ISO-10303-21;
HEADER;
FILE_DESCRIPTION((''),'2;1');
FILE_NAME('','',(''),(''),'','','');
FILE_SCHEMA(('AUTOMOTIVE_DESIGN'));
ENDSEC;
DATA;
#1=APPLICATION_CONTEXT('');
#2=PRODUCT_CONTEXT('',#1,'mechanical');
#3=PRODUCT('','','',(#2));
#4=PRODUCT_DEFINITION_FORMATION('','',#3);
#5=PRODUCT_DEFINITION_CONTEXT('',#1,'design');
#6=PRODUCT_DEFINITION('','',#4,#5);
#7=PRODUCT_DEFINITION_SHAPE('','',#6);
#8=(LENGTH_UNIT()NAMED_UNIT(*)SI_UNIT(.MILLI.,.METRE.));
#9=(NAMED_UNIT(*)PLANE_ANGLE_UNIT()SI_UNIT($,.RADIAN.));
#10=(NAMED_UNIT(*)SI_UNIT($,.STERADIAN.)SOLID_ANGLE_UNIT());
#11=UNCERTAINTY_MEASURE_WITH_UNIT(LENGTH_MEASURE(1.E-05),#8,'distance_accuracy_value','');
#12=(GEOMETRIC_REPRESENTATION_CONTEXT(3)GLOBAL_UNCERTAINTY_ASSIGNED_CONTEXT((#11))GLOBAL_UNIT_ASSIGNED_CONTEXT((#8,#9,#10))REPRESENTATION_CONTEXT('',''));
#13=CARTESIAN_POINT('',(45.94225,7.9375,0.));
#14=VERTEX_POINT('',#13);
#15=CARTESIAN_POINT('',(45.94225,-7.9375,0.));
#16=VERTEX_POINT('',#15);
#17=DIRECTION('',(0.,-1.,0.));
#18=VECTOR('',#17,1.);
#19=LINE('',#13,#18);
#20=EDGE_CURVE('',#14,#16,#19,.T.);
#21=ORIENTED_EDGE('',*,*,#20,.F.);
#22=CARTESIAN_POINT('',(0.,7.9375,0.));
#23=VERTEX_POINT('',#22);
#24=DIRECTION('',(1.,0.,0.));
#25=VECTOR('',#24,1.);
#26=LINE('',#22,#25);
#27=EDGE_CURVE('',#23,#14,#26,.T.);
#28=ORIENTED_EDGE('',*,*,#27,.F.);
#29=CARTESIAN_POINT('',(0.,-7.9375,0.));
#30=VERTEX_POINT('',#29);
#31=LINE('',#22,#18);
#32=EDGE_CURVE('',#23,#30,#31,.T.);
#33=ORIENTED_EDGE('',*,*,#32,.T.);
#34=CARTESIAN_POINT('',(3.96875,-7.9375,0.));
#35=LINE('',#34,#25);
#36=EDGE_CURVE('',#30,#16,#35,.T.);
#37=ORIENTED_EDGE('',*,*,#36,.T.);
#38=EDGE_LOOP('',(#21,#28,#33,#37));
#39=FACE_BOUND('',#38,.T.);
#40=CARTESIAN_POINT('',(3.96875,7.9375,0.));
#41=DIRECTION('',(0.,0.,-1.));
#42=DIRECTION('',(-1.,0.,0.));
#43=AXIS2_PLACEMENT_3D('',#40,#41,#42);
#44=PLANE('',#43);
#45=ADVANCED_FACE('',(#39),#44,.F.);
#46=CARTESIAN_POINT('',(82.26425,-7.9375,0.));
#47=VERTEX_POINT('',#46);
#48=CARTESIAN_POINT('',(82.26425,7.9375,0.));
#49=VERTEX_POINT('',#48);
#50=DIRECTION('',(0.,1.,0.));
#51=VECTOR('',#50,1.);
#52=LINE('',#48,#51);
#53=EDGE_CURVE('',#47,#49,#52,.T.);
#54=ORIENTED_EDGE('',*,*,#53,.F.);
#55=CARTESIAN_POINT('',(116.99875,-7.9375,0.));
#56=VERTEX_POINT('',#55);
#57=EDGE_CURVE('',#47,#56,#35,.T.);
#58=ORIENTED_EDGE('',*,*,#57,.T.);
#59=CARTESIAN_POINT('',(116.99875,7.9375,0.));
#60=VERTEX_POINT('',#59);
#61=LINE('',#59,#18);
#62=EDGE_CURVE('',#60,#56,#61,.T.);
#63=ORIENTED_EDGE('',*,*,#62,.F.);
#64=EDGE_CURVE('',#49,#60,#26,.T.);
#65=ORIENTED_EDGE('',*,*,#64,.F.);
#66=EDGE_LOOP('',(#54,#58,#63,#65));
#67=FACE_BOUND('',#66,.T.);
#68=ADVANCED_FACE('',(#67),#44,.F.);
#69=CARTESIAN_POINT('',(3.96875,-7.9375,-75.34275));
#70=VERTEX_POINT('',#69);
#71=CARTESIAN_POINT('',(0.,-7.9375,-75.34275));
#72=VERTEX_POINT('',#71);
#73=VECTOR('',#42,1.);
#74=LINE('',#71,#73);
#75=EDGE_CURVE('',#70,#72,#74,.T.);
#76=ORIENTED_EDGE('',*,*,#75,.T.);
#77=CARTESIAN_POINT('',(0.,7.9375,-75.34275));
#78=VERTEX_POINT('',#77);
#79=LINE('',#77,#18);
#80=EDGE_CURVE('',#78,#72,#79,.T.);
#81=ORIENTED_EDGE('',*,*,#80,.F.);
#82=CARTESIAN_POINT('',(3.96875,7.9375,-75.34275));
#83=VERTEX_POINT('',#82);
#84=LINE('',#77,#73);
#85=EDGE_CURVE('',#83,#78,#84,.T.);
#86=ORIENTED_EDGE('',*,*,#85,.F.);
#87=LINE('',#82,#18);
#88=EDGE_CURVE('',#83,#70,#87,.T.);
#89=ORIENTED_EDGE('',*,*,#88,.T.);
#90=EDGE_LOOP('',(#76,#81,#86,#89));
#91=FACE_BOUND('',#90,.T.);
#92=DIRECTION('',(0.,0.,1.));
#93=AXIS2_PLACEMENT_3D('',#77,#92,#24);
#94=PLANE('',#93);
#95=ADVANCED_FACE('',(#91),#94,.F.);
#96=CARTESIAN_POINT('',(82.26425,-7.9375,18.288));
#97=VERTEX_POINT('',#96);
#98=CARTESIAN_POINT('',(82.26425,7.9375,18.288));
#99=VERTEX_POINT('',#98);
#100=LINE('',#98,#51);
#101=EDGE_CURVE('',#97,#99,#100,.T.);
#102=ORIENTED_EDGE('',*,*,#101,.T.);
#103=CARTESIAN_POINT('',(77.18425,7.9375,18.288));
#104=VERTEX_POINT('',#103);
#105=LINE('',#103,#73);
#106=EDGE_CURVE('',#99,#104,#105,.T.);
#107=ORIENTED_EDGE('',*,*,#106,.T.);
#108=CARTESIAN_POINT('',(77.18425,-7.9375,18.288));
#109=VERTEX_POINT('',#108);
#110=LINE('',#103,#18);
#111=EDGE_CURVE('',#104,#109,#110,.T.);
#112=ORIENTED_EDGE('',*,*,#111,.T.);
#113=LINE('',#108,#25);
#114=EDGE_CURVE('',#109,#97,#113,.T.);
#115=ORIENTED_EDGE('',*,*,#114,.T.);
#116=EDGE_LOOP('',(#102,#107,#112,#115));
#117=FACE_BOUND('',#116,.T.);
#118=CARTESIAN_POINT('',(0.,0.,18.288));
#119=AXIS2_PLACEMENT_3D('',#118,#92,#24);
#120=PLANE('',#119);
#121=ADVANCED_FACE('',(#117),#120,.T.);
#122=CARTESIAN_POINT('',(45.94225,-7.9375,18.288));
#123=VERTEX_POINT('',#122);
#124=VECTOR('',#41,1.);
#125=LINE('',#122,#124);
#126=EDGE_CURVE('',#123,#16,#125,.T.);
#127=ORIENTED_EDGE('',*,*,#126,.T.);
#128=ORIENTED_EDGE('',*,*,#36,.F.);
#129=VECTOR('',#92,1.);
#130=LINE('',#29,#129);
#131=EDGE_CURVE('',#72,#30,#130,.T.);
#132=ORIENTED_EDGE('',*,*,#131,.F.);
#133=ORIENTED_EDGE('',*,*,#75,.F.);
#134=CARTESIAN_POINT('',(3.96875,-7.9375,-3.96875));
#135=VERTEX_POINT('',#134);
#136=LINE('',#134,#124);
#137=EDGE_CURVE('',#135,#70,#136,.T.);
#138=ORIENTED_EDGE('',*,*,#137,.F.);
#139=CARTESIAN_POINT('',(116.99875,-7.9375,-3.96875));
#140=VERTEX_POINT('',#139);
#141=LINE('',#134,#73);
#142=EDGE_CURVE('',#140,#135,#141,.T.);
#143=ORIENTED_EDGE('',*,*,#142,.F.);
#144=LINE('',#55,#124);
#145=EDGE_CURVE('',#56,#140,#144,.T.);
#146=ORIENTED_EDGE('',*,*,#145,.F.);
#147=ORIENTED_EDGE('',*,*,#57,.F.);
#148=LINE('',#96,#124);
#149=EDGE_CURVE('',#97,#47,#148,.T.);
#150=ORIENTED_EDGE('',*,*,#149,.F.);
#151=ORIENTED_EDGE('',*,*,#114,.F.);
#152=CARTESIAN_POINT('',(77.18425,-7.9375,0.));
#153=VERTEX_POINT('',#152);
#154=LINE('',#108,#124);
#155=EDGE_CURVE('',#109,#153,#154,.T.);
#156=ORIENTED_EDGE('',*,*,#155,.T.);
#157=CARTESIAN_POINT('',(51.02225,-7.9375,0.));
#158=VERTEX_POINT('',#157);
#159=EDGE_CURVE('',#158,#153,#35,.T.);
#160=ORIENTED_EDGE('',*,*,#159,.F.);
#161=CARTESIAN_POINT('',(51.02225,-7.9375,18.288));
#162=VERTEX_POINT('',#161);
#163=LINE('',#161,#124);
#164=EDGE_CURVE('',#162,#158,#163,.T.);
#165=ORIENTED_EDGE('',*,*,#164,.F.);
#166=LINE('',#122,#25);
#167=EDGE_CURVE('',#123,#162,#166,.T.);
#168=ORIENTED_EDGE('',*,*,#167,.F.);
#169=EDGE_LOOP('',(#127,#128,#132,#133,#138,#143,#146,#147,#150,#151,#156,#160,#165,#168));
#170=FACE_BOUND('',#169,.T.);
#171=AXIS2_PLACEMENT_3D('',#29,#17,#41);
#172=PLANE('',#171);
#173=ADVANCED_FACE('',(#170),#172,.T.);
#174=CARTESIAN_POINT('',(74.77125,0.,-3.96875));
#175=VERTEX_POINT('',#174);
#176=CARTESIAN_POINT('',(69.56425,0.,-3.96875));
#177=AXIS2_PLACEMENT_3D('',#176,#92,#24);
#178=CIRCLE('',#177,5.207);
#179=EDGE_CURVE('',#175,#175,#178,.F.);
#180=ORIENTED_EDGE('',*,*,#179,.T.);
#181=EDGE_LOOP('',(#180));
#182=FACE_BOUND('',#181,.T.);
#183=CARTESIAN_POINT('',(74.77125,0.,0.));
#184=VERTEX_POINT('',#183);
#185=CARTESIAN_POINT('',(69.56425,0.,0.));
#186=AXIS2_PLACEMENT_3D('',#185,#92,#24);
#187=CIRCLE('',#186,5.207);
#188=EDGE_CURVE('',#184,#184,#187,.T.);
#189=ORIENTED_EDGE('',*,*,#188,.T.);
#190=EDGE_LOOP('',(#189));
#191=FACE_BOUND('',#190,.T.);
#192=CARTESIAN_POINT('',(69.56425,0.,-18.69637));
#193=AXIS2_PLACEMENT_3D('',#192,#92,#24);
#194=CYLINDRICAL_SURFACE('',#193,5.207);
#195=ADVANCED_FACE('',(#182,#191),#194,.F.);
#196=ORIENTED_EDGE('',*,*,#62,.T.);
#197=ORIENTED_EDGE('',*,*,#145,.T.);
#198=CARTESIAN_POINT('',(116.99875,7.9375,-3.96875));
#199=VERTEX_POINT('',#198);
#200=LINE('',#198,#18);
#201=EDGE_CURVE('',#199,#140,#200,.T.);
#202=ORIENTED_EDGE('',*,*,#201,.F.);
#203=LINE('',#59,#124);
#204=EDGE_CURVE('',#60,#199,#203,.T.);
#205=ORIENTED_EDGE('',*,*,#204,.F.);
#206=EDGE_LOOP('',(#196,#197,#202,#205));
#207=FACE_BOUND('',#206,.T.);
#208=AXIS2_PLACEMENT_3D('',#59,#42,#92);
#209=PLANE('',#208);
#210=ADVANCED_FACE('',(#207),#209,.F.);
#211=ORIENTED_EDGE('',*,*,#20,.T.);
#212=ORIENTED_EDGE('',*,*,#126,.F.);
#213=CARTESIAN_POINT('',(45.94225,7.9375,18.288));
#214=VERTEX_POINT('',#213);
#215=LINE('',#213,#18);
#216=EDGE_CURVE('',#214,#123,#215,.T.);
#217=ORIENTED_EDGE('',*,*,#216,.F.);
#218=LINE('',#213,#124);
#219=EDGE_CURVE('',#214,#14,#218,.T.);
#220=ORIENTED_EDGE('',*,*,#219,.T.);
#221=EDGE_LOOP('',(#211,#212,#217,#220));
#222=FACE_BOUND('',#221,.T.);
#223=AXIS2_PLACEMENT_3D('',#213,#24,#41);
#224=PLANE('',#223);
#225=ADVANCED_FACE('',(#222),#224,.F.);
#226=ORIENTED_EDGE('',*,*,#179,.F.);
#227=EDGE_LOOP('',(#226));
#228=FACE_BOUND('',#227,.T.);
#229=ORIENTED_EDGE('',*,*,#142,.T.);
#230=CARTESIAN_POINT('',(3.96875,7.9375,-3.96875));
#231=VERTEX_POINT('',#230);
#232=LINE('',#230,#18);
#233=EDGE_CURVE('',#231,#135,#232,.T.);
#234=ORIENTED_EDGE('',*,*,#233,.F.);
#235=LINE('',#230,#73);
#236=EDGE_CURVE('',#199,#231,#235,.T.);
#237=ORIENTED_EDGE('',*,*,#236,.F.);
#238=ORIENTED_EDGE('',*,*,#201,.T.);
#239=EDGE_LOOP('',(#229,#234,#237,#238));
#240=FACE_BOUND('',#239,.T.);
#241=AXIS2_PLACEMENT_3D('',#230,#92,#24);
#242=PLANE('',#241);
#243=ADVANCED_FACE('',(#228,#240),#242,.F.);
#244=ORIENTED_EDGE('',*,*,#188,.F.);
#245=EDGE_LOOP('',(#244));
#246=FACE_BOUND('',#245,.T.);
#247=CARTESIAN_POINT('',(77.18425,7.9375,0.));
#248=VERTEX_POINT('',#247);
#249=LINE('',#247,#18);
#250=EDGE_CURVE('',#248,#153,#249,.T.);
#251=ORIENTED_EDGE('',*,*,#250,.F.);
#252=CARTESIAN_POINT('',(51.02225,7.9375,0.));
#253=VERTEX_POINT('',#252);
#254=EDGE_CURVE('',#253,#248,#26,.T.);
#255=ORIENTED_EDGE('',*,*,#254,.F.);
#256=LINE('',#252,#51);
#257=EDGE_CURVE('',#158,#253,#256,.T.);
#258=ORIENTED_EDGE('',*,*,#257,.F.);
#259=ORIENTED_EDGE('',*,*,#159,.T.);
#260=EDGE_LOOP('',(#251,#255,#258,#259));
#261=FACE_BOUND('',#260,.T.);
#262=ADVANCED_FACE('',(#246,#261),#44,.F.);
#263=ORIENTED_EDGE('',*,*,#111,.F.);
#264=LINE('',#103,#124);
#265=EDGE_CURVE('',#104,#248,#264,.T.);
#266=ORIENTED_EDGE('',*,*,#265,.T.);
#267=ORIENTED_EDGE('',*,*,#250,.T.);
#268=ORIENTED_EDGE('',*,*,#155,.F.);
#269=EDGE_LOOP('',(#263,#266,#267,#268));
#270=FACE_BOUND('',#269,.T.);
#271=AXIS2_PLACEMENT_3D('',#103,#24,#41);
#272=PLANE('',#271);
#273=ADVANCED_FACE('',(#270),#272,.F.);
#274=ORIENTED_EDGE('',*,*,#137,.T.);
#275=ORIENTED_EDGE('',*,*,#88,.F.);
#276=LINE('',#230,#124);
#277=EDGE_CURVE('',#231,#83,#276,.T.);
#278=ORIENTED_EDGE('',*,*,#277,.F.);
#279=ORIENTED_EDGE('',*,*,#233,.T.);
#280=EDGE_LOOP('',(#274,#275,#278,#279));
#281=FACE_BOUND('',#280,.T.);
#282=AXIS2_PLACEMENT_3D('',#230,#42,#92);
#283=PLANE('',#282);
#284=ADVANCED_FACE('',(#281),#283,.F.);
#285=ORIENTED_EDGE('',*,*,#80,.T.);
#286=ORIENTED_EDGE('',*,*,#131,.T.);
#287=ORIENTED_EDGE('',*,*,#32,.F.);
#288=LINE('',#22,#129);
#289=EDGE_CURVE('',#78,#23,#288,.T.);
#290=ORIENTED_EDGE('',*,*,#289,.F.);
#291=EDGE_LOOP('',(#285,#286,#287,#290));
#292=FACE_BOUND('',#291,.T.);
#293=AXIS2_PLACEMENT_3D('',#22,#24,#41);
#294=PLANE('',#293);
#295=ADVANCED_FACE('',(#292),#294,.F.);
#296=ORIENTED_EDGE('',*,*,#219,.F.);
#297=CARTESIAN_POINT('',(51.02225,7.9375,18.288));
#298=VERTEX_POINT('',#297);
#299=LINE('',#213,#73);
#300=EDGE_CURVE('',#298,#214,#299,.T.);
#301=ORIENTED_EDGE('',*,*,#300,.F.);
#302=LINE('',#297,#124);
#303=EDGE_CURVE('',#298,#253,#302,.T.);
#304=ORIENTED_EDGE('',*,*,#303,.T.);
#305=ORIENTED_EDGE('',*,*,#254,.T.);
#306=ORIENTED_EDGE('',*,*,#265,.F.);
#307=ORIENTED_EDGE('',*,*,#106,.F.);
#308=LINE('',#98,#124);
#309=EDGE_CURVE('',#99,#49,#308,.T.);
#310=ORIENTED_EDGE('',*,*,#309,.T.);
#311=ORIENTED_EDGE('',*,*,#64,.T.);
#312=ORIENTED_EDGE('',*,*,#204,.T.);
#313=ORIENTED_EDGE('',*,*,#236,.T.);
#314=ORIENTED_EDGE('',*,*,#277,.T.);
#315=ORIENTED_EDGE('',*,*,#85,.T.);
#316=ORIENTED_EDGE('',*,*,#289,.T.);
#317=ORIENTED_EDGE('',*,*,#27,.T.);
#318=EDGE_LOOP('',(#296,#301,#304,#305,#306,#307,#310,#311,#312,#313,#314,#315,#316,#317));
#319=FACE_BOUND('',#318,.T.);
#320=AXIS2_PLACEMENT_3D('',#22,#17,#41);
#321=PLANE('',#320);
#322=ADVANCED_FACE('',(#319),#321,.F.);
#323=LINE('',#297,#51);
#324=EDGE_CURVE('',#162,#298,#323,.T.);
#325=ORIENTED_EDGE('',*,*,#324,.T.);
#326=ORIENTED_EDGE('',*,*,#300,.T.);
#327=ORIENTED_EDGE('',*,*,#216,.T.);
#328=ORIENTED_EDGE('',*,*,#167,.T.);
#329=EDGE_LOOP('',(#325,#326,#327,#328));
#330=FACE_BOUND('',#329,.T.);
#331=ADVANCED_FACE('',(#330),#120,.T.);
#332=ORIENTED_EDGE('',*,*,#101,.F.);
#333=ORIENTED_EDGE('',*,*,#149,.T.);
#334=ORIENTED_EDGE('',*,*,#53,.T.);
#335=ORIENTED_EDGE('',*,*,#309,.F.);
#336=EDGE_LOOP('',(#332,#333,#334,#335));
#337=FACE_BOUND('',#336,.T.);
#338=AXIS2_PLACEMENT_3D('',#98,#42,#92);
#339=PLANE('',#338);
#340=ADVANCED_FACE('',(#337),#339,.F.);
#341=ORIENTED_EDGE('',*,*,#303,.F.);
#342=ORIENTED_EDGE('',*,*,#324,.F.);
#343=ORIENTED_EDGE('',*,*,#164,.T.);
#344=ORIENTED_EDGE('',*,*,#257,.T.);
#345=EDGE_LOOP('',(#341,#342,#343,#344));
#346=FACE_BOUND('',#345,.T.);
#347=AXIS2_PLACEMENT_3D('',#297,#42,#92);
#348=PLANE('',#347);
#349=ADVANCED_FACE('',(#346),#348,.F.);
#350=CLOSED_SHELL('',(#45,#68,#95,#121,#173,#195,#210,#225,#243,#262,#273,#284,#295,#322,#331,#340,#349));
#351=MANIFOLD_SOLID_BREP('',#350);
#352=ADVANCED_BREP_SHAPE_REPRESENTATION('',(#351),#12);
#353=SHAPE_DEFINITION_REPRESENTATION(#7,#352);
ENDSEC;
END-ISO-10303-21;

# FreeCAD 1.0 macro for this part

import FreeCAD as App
import Part
import Sketcher
Q = App.Units.Quantity

doc = App.newDocument("Part")
body = doc.addObject("PartDesign::Body", "Body")

sketch1 = body.newObject("Sketcher::SketchObject", "Sketch")
sketch1.AttachmentSupport = (doc.getObject("XZ_Plane"), [""])
sketch1.MapMode = "FlatFace"
sketch1.addGeometry([
    Part.LineSegment(App.Vector(0, 0, 0), App.Vector(116.99875, 0, 0)),
    Part.LineSegment(App.Vector(116.99875, 0, 0), App.Vector(116.99875, -3.96875, 0)),
    Part.LineSegment(App.Vector(116.99875, -3.96875, 0), App.Vector(3.96875, -3.96875, 0)),
    Part.LineSegment(App.Vector(3.96875, -3.96875, 0), App.Vector(3.96875, -75.34275, 0)),
    Part.LineSegment(App.Vector(3.96875, -75.34275, 0), App.Vector(0, -75.34275, 0)),
    Part.LineSegment(App.Vector(0, -75.34275, 0), App.Vector(0, 0, 0)),
], False)
sketch1.addConstraint([
    Sketcher.Constraint("Coincident", 0, 2, 1, 1),
    Sketcher.Constraint("Coincident", 1, 2, 2, 1),
    Sketcher.Constraint("Coincident", 2, 2, 3, 1),
    Sketcher.Constraint("Coincident", 3, 2, 4, 1),
    Sketcher.Constraint("Coincident", 4, 2, 5, 1),
    Sketcher.Constraint("Coincident", 5, 2, 0, 1),
    Sketcher.Constraint("Horizontal", 0),
    Sketcher.Constraint("Vertical", 1),
    Sketcher.Constraint("Horizontal", 2),
    Sketcher.Constraint("Vertical", 3),
    Sketcher.Constraint("Horizontal", 4),
    Sketcher.Constraint("Vertical", 5),
    Sketcher.Constraint("Coincident", 5, 2, -1, 1),
    Sketcher.Constraint("Equal", 4, 1),
    Sketcher.Constraint("DistanceX", 2, 2, 2, 1, Q("4.45 in")),
    Sketcher.Constraint("DistanceY", 3, 2, 3, 1, Q("2.81 in")),
    Sketcher.Constraint("DistanceX", 4, 2, 4, 1, Q("0.15625 in")),
])
pad1 = body.newObject("PartDesign::Pad", "Pad")
pad1.Profile = sketch1
pad1.Length = Q("0.625 in")
pad1.Midplane = True

sketch2 = body.newObject("Sketcher::SketchObject", "Sketch001")
sketch2.AttachmentSupport = (doc.getObject("XY_Plane"), [""])
sketch2.MapMode = "FlatFace"
sketch2.addGeometry(Part.Circle(App.Vector(69.56425, 0, 0), App.Vector(0, 0, 1), 5.207), False)
sketch2.addConstraint([
    Sketcher.Constraint("PointOnObject", 0, 3, -1),
    Sketcher.Constraint("Diameter", 0, Q("0.41 in")),
    Sketcher.Constraint("DistanceX", -1, 1, 0, 3, Q("69.56425 mm")),
])
pocket1 = body.newObject("PartDesign::Pocket", "Pocket")
pocket1.Profile = sketch2
pocket1.Length = Q("0.15625 in")

sketch3 = body.newObject("Sketcher::SketchObject", "Sketch002")
sketch3.AttachmentSupport = (doc.getObject("XY_Plane"), [""])
sketch3.MapMode = "FlatFace"
sketch3.addGeometry([
    Part.LineSegment(App.Vector(45.94225, 7.9375, 0), App.Vector(45.94225, -7.9375, 0)),
    Part.LineSegment(App.Vector(45.94225, -7.9375, 0), App.Vector(51.02225, -7.9375, 0)),
    Part.LineSegment(App.Vector(51.02225, -7.9375, 0), App.Vector(51.02225, 7.9375, 0)),
    Part.LineSegment(App.Vector(51.02225, 7.9375, 0), App.Vector(45.94225, 7.9375, 0)),
    Part.LineSegment(App.Vector(77.18425, 7.9375, 0), App.Vector(77.18425, -7.9375, 0)),
    Part.LineSegment(App.Vector(77.18425, -7.9375, 0), App.Vector(82.26425, -7.9375, 0)),
    Part.LineSegment(App.Vector(82.26425, -7.9375, 0), App.Vector(82.26425, 7.9375, 0)),
    Part.LineSegment(App.Vector(82.26425, 7.9375, 0), App.Vector(77.18425, 7.9375, 0)),
], False)
sketch3.addConstraint([
    Sketcher.Constraint("Coincident", 0, 2, 1, 1),
    Sketcher.Constraint("Coincident", 1, 2, 2, 1),
    Sketcher.Constraint("Coincident", 2, 2, 3, 1),
    Sketcher.Constraint("Coincident", 3, 2, 0, 1),
    Sketcher.Constraint("Coincident", 4, 2, 5, 1),
    Sketcher.Constraint("Coincident", 5, 2, 6, 1),
    Sketcher.Constraint("Coincident", 6, 2, 7, 1),
    Sketcher.Constraint("Coincident", 7, 2, 4, 1),
    Sketcher.Constraint("Vertical", 0),
    Sketcher.Constraint("Horizontal", 1),
    Sketcher.Constraint("Vertical", 2),
    Sketcher.Constraint("Horizontal", 3),
    Sketcher.Constraint("Vertical", 4),
    Sketcher.Constraint("Horizontal", 5),
    Sketcher.Constraint("Vertical", 6),
    Sketcher.Constraint("Horizontal", 7),
    Sketcher.Constraint("Horizontal", 1, 2, 4, 2),
    Sketcher.Constraint("Horizontal", 3, 2, 6, 2),
    Sketcher.Constraint("Equal", 3, 5),
    Sketcher.Constraint("DistanceX", 1, 1, 1, 2, Q("0.2 in")),
    Sketcher.Constraint("DistanceY", 0, 2, 0, 1, Q("0.625 in")),
    Sketcher.Constraint("DistanceX", 1, 2, 4, 2, Q("1.03 in")),
    Sketcher.Constraint("DistanceY", 0, 2, -1, 1, Q("0.3125 in")),
    Sketcher.Constraint("DistanceX", -1, 1, 0, 2, Q("45.94225 mm")),
])
pad2 = body.newObject("PartDesign::Pad", "Pad001")
pad2.Profile = sketch3
pad2.Length = Q("0.72 in")

doc.recompute()
